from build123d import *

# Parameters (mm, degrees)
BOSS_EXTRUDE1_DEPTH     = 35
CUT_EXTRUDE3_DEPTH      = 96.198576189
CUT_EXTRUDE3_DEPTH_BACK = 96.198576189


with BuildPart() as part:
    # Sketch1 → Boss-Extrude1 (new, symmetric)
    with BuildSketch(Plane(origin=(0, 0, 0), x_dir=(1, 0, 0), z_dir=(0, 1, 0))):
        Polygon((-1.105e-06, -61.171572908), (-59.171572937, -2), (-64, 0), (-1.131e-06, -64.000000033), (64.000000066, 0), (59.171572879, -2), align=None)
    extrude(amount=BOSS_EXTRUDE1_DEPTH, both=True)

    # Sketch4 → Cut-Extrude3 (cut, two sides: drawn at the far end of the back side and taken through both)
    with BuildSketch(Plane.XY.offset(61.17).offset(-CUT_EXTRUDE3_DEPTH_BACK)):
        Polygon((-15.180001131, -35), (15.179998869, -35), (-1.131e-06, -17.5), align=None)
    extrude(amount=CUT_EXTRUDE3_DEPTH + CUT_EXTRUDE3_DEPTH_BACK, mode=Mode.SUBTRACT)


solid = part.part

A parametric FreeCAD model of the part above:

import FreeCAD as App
import Part
import Sketcher
from FreeCAD import Vector
Q = App.Units.Quantity

doc = App.newDocument("Part")
body = doc.addObject("PartDesign::Body", "Body")

# Sketch on XZ plane
sketch1 = body.newObject("Sketcher::SketchObject", "Sketch")
sketch1.AttachmentSupport = (doc.getObject("XZ_Plane"), [""])
sketch1.MapMode = "FlatFace"
sketch1.addGeometry([
    Part.LineSegment(Vector(0, 61, 0), Vector(-59, 2, 0)),  # 0
    Part.LineSegment(Vector(-59, 2, 0), Vector(-64, 0, 0)),  # 1
    Part.LineSegment(Vector(-64, 0, 0), Vector(0, 64, 0)),  # 2
    Part.LineSegment(Vector(0, 64, 0), Vector(64, 0, 0)),  # 3
    Part.LineSegment(Vector(64, 0, 0), Vector(59, 2, 0)),  # 4
    Part.LineSegment(Vector(59, 2, 0), Vector(0, 61, 0)),  # 5
], False)
sketch1.addConstraint([
    Sketcher.Constraint("Coincident", 0, 2, 1, 1),
    Sketcher.Constraint("Coincident", 1, 2, 2, 1),
    Sketcher.Constraint("Coincident", 2, 2, 3, 1),
    Sketcher.Constraint("Coincident", 3, 2, 4, 1),
    Sketcher.Constraint("Coincident", 4, 2, 5, 1),
    Sketcher.Constraint("Coincident", 5, 2, 0, 1),
    Sketcher.Constraint("Symmetric", 1, 2, 3, 2, -1, 1),
    Sketcher.Constraint("Symmetric", 0, 2, 4, 2, -2),
    Sketcher.Constraint("PointOnObject", 1, 2, -1),
    Sketcher.Constraint("PointOnObject", 2, 2, -2),
    Sketcher.Constraint("PointOnObject", 5, 2, -2),
    Sketcher.Constraint("Parallel", 0, 2),
    Sketcher.Constraint("Perpendicular", 2, 3),
    Sketcher.Constraint("DistanceY", -1, 1, 0, 2, 2.0),
    Sketcher.Constraint("DistanceX", 1, 2, -1, 1, 64.0),
    Sketcher.Constraint("Angle", 1, Q("-157.5 deg")),
])
pad1 = body.newObject("PartDesign::Pad", "Pad")
pad1.Profile = sketch1
pad1.Length = 70
pad1.Midplane = True

# Sketch on XY plane
sketch2 = body.newObject("Sketcher::SketchObject", "Sketch001")
sketch2.AttachmentSupport = (doc.getObject("XY_Plane"), [""])
sketch2.MapMode = "FlatFace"
sketch2.AttachmentOffset = App.Placement(Vector(0, 0, 61.17), App.Rotation())
sketch2.addGeometry([
    Part.LineSegment(Vector(-15, -35, 0), Vector(15, -35, 0)),
    Part.LineSegment(Vector(15, -35, 0), Vector(0, -18, 0)),
    Part.LineSegment(Vector(0, -18, 0), Vector(-15, -35, 0)),
], False)
sketch2.addConstraint([
    Sketcher.Constraint("Coincident", 0, 2, 1, 1),
    Sketcher.Constraint("Coincident", 1, 2, 2, 1),
    Sketcher.Constraint("Coincident", 2, 2, 0, 1),
    Sketcher.Constraint("Horizontal", 0),
    Sketcher.Constraint("PointOnObject", 1, 2, -2),
    Sketcher.Constraint("Equal", 1, 2),
    Sketcher.Constraint("DistanceY", 0, 2, -1, 1, 35.0),
    Sketcher.Constraint("DistanceX", 0, 1, 0, 2, 30.36),
    Sketcher.Constraint("DistanceY", 1, 2, -1, 1, 17.5),
])
pocket1 = body.newObject("PartDesign::Pocket", "Pocket")
pocket1.Profile = sketch2
pocket1.Type = "ThroughAll"
pocket1.Midplane = True

doc.recompute()
